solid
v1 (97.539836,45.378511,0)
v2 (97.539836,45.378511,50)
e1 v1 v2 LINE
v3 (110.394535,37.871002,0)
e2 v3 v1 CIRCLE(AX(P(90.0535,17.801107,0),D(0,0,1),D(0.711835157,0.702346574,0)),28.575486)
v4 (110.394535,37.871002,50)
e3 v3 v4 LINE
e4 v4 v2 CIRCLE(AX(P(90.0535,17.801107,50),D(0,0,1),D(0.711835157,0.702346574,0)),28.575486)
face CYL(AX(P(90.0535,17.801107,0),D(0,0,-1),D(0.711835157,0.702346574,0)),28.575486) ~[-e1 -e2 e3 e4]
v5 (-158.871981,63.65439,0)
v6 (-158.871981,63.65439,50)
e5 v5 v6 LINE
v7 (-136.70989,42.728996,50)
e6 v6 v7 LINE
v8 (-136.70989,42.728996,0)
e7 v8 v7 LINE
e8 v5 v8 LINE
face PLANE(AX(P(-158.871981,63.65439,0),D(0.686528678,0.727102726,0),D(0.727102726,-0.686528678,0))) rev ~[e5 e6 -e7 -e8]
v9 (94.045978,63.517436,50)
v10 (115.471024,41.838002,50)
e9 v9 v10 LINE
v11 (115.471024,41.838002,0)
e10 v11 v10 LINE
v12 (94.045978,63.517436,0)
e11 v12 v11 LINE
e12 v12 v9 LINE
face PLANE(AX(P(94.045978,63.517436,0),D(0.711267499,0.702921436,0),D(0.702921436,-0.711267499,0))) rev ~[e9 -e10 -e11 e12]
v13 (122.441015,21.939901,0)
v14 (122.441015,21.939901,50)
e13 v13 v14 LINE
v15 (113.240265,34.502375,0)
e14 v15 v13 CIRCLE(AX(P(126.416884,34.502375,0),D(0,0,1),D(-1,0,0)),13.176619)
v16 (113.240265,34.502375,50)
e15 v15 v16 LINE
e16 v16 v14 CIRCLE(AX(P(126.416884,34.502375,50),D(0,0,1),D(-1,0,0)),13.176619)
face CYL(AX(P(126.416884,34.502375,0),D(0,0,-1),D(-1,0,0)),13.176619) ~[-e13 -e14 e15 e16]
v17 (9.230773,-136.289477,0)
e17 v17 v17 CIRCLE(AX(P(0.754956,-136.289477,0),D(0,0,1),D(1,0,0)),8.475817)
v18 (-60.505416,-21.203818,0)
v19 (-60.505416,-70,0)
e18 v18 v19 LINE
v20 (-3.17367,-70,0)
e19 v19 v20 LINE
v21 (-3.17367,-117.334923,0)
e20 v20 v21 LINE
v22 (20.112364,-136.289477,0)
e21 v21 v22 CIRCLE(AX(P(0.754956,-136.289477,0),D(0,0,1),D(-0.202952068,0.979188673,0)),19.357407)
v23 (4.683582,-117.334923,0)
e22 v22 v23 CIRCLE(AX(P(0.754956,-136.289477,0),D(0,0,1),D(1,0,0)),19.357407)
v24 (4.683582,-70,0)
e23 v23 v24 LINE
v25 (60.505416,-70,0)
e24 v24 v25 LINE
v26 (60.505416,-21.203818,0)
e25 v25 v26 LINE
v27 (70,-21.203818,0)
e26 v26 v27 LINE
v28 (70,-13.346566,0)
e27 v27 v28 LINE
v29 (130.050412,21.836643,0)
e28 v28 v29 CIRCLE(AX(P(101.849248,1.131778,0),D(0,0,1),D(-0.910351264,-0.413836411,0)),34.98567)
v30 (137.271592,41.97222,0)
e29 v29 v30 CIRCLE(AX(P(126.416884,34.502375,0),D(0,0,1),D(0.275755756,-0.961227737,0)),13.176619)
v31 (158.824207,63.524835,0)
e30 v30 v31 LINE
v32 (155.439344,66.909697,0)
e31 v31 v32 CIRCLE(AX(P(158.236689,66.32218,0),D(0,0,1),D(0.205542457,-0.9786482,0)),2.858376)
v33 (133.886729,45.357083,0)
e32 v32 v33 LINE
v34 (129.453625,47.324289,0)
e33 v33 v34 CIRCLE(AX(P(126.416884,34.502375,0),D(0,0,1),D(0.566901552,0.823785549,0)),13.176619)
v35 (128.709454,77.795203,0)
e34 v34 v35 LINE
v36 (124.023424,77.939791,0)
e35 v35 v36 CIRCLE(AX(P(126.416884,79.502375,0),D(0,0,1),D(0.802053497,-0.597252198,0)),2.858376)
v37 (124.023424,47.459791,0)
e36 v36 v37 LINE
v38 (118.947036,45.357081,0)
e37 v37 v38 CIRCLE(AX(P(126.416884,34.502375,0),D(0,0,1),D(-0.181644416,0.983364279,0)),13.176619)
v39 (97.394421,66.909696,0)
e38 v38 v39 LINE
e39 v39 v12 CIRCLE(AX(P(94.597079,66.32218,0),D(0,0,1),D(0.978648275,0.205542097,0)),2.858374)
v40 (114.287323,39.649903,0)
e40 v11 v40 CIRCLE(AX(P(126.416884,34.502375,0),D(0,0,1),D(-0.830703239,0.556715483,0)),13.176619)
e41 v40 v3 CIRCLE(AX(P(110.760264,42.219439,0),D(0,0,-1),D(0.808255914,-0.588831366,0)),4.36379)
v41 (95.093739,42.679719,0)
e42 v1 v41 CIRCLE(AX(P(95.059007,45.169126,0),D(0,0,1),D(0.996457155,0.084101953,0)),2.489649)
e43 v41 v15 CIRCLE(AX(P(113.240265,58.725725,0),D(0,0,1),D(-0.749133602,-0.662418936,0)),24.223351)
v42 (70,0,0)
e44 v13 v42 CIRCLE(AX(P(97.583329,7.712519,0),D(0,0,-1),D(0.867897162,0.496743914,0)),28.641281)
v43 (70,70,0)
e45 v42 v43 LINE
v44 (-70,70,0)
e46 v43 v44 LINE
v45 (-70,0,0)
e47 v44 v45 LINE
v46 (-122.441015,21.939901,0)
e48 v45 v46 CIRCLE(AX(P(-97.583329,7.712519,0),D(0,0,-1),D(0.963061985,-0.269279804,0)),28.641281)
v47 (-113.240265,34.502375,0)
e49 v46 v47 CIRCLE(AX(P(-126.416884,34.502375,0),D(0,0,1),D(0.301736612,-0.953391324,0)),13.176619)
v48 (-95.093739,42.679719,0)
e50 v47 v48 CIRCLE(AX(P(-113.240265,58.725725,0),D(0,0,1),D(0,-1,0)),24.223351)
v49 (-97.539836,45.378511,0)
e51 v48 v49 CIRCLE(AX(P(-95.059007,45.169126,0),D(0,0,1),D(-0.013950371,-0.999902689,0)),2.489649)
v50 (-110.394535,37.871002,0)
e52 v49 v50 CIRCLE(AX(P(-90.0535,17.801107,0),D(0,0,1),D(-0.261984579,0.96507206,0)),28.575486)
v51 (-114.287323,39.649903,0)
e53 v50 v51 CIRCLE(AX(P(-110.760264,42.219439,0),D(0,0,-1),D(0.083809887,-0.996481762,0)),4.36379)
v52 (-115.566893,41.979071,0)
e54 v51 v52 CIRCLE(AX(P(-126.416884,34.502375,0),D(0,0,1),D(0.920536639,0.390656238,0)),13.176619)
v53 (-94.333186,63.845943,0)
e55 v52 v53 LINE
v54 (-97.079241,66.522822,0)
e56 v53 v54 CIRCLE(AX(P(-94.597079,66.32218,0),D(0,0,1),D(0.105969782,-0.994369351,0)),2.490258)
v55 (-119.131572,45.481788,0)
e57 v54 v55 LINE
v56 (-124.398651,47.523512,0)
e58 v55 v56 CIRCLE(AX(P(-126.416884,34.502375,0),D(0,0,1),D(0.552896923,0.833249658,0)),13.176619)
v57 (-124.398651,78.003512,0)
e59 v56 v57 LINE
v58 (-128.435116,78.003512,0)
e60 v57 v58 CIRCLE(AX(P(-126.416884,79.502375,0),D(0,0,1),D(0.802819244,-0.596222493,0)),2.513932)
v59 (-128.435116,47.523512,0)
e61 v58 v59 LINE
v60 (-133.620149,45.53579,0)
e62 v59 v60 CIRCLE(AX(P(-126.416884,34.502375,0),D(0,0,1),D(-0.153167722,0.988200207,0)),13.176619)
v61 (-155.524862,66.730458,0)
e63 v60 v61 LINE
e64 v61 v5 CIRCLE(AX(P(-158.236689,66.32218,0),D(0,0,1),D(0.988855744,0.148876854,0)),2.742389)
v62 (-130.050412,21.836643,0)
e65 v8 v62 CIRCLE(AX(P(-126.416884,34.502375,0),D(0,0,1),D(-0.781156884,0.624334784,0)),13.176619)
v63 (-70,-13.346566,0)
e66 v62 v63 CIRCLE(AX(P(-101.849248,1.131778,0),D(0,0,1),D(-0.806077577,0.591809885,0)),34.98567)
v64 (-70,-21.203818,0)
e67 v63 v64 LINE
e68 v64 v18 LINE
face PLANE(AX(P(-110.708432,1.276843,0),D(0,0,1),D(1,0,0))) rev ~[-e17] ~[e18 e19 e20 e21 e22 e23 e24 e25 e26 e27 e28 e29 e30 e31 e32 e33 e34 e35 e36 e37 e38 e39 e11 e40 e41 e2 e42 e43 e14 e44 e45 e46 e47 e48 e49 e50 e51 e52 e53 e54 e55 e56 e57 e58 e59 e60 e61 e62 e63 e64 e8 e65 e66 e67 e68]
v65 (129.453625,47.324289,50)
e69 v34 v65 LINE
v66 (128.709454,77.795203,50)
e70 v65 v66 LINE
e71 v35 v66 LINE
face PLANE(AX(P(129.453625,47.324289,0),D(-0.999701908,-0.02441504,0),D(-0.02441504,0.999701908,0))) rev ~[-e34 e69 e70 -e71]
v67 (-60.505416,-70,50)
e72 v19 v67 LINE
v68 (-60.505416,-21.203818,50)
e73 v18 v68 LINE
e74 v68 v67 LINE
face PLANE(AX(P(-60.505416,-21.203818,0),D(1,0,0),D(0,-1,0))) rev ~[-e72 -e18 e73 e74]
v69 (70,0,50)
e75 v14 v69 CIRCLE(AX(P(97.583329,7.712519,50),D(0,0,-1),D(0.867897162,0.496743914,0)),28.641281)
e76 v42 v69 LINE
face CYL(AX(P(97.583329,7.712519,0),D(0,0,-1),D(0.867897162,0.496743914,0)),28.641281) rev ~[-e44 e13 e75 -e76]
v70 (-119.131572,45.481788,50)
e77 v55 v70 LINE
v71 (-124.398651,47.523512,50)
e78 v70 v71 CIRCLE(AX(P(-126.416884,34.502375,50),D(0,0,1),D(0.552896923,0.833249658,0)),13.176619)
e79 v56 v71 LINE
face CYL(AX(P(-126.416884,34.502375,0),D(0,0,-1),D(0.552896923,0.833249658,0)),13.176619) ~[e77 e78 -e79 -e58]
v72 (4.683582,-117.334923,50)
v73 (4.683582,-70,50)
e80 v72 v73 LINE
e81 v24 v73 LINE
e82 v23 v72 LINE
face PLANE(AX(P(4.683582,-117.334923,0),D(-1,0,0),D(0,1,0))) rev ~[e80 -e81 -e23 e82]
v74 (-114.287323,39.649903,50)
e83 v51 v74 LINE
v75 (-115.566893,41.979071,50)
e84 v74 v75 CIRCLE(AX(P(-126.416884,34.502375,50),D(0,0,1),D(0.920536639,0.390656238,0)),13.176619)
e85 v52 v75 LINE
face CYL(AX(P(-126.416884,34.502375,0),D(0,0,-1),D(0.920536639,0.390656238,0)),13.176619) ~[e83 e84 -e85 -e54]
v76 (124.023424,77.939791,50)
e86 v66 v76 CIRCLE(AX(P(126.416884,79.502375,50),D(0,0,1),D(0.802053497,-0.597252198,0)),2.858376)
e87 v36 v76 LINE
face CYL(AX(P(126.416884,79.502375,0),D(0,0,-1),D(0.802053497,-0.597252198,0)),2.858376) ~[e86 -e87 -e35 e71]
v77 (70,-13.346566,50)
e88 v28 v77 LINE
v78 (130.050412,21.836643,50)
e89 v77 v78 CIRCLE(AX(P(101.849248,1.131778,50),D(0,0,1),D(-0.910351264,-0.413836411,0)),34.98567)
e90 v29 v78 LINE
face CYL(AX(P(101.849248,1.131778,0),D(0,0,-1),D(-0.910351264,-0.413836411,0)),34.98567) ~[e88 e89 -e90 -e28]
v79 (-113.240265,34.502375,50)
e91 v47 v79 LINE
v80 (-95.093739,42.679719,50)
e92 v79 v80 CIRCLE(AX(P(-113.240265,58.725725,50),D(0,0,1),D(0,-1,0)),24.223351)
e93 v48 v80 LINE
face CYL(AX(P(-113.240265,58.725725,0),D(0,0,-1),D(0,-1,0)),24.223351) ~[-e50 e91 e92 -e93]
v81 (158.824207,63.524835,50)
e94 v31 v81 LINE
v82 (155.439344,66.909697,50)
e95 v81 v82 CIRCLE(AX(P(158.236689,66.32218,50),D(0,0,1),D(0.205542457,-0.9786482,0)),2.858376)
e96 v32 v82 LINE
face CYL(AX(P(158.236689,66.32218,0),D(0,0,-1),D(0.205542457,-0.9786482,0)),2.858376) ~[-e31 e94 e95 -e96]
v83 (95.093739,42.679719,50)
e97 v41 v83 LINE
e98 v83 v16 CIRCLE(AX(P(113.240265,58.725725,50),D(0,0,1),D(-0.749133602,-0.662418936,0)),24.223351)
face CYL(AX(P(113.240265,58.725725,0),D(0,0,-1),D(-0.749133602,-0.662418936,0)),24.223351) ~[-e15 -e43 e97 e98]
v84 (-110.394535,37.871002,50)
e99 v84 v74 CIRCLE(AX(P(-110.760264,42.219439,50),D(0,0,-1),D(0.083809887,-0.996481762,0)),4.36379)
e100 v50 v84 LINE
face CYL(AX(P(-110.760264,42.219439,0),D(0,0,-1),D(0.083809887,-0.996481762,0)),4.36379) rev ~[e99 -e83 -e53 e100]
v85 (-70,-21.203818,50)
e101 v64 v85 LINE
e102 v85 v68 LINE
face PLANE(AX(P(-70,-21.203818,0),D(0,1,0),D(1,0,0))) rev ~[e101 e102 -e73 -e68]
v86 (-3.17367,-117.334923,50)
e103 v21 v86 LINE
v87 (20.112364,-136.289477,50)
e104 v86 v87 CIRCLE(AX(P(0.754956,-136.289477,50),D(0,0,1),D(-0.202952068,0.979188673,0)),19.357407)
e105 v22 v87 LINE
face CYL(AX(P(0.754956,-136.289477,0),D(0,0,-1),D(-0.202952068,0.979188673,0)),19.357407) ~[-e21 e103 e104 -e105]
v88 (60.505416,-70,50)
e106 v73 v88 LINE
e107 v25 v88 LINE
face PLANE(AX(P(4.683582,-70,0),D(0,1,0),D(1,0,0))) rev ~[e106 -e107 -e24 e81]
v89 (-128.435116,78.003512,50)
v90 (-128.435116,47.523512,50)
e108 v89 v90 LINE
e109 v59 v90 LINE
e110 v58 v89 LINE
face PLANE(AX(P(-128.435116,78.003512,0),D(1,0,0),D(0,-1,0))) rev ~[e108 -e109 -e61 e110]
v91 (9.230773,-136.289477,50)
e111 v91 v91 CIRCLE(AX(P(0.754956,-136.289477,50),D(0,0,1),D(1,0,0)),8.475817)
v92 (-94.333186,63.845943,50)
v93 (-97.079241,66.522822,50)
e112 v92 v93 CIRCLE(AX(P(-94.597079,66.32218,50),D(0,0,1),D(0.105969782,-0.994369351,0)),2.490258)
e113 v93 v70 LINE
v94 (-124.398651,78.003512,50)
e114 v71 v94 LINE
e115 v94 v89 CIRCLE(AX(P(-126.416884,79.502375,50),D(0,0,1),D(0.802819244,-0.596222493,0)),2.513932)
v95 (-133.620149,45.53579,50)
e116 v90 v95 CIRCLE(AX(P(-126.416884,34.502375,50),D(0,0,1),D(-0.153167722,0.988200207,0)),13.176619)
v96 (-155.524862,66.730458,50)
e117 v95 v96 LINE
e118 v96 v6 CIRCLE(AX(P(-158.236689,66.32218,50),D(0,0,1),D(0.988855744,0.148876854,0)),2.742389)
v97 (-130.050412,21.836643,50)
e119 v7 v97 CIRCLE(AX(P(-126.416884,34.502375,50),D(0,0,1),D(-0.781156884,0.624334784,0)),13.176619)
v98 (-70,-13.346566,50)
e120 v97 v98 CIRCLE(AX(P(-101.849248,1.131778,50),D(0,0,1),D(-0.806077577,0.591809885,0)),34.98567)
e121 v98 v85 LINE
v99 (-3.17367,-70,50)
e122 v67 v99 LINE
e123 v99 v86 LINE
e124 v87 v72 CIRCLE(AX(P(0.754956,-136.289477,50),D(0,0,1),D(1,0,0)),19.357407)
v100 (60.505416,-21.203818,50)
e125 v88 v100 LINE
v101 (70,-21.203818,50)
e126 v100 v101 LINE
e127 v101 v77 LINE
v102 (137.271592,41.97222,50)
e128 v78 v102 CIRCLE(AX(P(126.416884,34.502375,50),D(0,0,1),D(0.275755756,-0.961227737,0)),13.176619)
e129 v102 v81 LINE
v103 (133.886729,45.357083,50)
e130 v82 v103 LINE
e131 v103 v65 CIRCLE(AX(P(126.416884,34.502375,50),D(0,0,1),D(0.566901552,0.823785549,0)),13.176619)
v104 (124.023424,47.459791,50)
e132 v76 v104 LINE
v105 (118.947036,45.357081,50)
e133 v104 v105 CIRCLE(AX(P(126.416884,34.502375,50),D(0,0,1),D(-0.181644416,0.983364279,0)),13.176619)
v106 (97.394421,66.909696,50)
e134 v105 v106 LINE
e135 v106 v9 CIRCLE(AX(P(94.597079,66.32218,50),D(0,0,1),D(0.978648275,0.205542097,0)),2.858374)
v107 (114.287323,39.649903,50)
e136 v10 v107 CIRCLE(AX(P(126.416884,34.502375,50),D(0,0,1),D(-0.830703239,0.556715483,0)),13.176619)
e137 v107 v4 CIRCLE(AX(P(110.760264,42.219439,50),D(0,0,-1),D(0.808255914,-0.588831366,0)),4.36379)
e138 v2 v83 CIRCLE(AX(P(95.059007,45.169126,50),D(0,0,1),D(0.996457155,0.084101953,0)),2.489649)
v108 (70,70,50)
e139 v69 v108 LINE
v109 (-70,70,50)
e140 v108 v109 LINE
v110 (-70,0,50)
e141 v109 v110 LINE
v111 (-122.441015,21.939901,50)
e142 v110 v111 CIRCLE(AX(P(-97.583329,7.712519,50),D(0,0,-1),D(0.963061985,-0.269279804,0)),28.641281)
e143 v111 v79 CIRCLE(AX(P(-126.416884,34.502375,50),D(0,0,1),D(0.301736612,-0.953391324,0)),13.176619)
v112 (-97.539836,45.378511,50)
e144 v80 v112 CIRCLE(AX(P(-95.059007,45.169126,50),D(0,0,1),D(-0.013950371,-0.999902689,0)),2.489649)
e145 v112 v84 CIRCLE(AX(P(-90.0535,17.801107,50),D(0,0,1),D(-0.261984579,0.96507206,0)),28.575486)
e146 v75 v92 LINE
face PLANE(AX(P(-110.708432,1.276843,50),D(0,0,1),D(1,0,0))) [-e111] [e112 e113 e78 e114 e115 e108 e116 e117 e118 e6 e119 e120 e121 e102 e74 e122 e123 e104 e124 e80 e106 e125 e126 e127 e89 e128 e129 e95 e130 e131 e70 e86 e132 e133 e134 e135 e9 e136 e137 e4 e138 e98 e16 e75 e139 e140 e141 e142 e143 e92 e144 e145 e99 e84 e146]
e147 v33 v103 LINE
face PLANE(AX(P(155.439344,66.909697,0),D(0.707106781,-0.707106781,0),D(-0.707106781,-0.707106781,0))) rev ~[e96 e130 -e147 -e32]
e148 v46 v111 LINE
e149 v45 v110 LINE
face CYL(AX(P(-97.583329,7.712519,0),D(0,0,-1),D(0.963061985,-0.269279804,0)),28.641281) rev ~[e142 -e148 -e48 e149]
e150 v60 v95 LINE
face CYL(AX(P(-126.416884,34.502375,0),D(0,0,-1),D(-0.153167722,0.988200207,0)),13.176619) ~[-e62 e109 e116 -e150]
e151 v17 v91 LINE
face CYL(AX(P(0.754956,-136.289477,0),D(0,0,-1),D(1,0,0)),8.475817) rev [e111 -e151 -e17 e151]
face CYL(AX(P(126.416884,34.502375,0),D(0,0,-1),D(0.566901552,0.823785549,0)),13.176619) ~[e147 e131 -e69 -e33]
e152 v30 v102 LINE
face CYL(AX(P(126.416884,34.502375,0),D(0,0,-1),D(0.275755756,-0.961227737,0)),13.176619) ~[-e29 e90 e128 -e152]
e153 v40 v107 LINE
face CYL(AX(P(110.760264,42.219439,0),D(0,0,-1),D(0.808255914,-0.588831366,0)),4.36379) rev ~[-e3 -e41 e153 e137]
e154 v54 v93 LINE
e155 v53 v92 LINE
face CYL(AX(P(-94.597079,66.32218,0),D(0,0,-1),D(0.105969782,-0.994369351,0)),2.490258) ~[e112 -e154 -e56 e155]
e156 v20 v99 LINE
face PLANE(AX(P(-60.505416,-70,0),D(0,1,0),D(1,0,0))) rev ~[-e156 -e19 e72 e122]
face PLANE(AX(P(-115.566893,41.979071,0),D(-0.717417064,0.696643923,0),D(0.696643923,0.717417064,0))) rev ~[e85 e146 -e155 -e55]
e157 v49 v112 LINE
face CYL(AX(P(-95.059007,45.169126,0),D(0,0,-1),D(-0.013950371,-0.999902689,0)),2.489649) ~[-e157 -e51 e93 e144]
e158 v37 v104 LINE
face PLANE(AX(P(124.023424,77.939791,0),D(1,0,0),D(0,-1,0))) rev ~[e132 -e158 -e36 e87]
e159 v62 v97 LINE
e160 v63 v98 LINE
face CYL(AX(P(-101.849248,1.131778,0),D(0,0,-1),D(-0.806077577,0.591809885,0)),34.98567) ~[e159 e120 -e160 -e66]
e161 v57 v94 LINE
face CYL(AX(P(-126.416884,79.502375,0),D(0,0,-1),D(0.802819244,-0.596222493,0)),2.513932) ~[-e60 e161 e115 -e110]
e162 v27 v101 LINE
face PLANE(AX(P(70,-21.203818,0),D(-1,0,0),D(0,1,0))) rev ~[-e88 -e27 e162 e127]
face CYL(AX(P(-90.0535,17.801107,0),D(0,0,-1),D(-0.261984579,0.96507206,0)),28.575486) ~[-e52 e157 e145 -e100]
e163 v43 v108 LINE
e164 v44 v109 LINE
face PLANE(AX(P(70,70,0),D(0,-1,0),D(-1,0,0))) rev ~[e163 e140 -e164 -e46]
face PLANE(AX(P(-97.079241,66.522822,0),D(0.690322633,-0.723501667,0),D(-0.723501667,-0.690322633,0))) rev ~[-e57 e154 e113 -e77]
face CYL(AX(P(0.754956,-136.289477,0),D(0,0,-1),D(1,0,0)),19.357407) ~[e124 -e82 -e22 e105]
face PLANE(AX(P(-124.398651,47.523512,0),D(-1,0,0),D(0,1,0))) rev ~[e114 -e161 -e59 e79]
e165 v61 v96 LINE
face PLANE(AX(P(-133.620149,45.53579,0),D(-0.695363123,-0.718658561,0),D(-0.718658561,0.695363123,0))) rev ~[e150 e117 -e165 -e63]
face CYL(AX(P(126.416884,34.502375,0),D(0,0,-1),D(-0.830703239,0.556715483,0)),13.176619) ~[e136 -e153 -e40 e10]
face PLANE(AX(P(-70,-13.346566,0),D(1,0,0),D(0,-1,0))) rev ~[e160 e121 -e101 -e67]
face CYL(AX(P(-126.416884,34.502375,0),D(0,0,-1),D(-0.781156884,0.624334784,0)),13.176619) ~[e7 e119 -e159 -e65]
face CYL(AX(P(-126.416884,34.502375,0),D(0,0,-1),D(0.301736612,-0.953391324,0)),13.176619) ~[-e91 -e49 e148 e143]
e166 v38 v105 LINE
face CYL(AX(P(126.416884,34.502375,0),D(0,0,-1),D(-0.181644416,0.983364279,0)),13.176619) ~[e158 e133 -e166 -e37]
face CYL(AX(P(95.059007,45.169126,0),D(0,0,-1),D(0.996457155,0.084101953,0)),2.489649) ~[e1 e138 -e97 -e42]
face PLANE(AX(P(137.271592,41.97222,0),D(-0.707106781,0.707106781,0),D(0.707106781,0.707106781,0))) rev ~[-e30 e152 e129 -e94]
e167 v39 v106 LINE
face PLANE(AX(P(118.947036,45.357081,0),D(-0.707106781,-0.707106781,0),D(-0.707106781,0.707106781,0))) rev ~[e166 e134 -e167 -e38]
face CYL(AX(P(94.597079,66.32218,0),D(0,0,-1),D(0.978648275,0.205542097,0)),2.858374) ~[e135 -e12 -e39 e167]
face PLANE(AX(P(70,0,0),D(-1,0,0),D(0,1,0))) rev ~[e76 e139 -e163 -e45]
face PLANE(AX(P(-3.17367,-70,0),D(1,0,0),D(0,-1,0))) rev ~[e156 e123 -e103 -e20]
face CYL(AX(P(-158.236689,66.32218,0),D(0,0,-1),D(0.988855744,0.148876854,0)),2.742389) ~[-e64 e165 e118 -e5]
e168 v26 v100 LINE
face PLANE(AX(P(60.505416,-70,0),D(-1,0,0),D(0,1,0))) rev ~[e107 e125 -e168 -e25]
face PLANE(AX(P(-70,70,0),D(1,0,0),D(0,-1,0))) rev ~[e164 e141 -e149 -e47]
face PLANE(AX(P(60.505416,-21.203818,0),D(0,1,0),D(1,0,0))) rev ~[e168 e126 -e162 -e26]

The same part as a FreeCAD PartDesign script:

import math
import FreeCAD as App
import Part
import Sketcher
from FreeCAD import Vector

doc = App.newDocument("Part")
body = doc.addObject("PartDesign::Body", "Body")

sketch1 = body.newObject("Sketcher::SketchObject", "Sketch")
sketch1.AttachmentSupport = (doc.getObject("XY_Plane"), [""])
sketch1.MapMode = "FlatFace"
sketch1.addGeometry([
    Part.ArcOfCircle(Part.Circle(Vector(-101.8, 1.1, 0), Vector(0, 0, 1), 35), math.radians(144), math.radians(336)),
    Part.LineSegment(Vector(-70, -13.3, 0), Vector(-70, -21.2, 0)),
    Part.LineSegment(Vector(-70, -21.2, 0), Vector(-60.5, -21.2, 0)),
    Part.LineSegment(Vector(-60.5, -21.2, 0), Vector(-60.5, -70, 0)),
    Part.LineSegment(Vector(-60.5, -70, 0), Vector(-3.2, -70, 0)),
    Part.LineSegment(Vector(-3.2, -70, 0), Vector(-3.2, -117.3, 0)),
    Part.ArcOfCircle(Part.Circle(Vector(0.8, -136.3, 0), Vector(0, 0, 1), 19.4), math.radians(102), math.radians(360)),
    Part.ArcOfCircle(Part.Circle(Vector(0.8, -136.3, 0), Vector(0, 0, 1), 19.4), math.radians(0), math.radians(78)),
    Part.LineSegment(Vector(4.7, -117.3, 0), Vector(4.7, -70, 0)),
    Part.LineSegment(Vector(4.7, -70, 0), Vector(60.5, -70, 0)),
    Part.LineSegment(Vector(60.5, -70, 0), Vector(60.5, -21.2, 0)),
    Part.LineSegment(Vector(60.5, -21.2, 0), Vector(70, -21.2, 0)),
    Part.LineSegment(Vector(70, -21.2, 0), Vector(70, -13.3, 0)),
    Part.ArcOfCircle(Part.Circle(Vector(101.8, 1.1, 0), Vector(0, 0, 1), 35), math.radians(-156), math.radians(36)),
    Part.ArcOfCircle(Part.Circle(Vector(126.4, 34.5, 0), Vector(0, 0, 1), 13.2), math.radians(-74), math.radians(35)),
    Part.LineSegment(Vector(137.3, 42, 0), Vector(158.8, 63.5, 0)),
    Part.ArcOfCircle(Part.Circle(Vector(158.2, 66.3, 0), Vector(0, 0, 1), 2.9), math.radians(-78), math.radians(168)),
    Part.LineSegment(Vector(155.4, 66.9, 0), Vector(133.9, 45.4, 0)),
    Part.ArcOfCircle(Part.Circle(Vector(126.4, 34.5, 0), Vector(0, 0, 1), 13.2), math.radians(55), math.radians(77)),
    Part.LineSegment(Vector(129.5, 47.3, 0), Vector(128.7, 77.8, 0)),
    Part.ArcOfCircle(Part.Circle(Vector(126.4, 79.5, 0), Vector(0, 0, 1), 2.9), math.radians(-37), math.radians(213)),
    Part.LineSegment(Vector(124, 77.9, 0), Vector(124, 47.5, 0)),
    Part.ArcOfCircle(Part.Circle(Vector(126.4, 34.5, 0), Vector(0, 0, 1), 13.2), math.radians(100), math.radians(125)),
    Part.LineSegment(Vector(118.9, 45.4, 0), Vector(97.4, 66.9, 0)),
    Part.ArcOfCircle(Part.Circle(Vector(94.6, 66.3, 0), Vector(0, 0, 1), 2.9), math.radians(12), math.radians(259)),
    Part.LineSegment(Vector(94, 63.5, 0), Vector(115.5, 41.8, 0)),
    Part.ArcOfCircle(Part.Circle(Vector(126.4, 34.5, 0), Vector(0, 0, 1), 13.2), math.radians(146.17), math.radians(157)),
    Part.ArcOfCircle(Part.Circle(Vector(110.8, 42.2, 0), Vector(0, 0, 1), 4.4), math.radians(-95), math.radians(-36)),
    Part.ArcOfCircle(Part.Circle(Vector(90.1, 17.8, 0), Vector(0, 0, 1), 28.6), math.radians(45), math.radians(75)),
    Part.ArcOfCircle(Part.Circle(Vector(95.1, 45.2, 0), Vector(0, 0, 1), 2.5), math.radians(5), math.radians(271)),
    Part.ArcOfCircle(Part.Circle(Vector(113.2, 58.7, 0), Vector(0, 0, 1), 24.2), math.radians(-139), math.radians(-90)),
    Part.ArcOfCircle(Part.Circle(Vector(126.4, 34.5, 0), Vector(0, 0, 1), 13.2), math.radians(-180), math.radians(-108)),
    Part.ArcOfCircle(Part.Circle(Vector(97.6, 7.7, 0), Vector(0, 0, 1), 28.6), math.radians(-164), math.radians(30)),
    Part.LineSegment(Vector(70, 0, 0), Vector(70, 70, 0)),
    Part.LineSegment(Vector(70, 70, 0), Vector(-70, 70, 0)),
    Part.LineSegment(Vector(-70, 70, 0), Vector(-70, 0, 0)),
    Part.ArcOfCircle(Part.Circle(Vector(-97.6, 7.7, 0), Vector(0, 0, 1), 28.6), math.radians(150), math.radians(344)),
    Part.ArcOfCircle(Part.Circle(Vector(-126.4, 34.5, 0), Vector(0, 0, 1), 13.2), math.radians(-72), math.radians(0)),
    Part.ArcOfCircle(Part.Circle(Vector(-113.2, 58.7, 0), Vector(0, 0, 1), 24.2), math.radians(-90), math.radians(-41)),
    Part.ArcOfCircle(Part.Circle(Vector(-95.1, 45.2, 0), Vector(0, 0, 1), 2.5), math.radians(-91), math.radians(175)),
    Part.ArcOfCircle(Part.Circle(Vector(-90.1, 17.8, 0), Vector(0, 0, 1), 28.6), math.radians(105), math.radians(135)),
    Part.ArcOfCircle(Part.Circle(Vector(-110.8, 42.2, 0), Vector(0, 0, 1), 4.4), math.radians(-144), math.radians(-85)),
    Part.ArcOfCircle(Part.Circle(Vector(-126.4, 34.5, 0), Vector(0, 0, 1), 13.2), math.radians(23), math.radians(34.57)),
    Part.LineSegment(Vector(-115.6, 42, 0), Vector(-94.3, 63.8, 0)),
    Part.ArcOfCircle(Part.Circle(Vector(-94.6, 66.3, 0), Vector(0, 0, 1), 2.5), math.radians(-84), math.radians(175)),
    Part.LineSegment(Vector(-97.1, 66.5, 0), Vector(-119.1, 45.5, 0)),
    Part.ArcOfCircle(Part.Circle(Vector(-126.4, 34.5, 0), Vector(0, 0, 1), 13.2), math.radians(56), math.radians(81)),
    Part.LineSegment(Vector(-124.4, 47.5, 0), Vector(-124.4, 78, 0)),
    Part.ArcOfCircle(Part.Circle(Vector(-126.4, 79.5, 0), Vector(0, 0, 1), 2.5), math.radians(-37), math.radians(217)),
    Part.LineSegment(Vector(-128.4, 78, 0), Vector(-128.4, 47.5, 0)),
    Part.ArcOfCircle(Part.Circle(Vector(-126.4, 34.5, 0), Vector(0, 0, 1), 13.2), math.radians(99), math.radians(123)),
    Part.LineSegment(Vector(-133.6, 45.5, 0), Vector(-155.5, 66.7, 0)),
    Part.ArcOfCircle(Part.Circle(Vector(-158.2, 66.3, 0), Vector(0, 0, 1), 2.7), math.radians(9), math.radians(257)),
    Part.LineSegment(Vector(-158.9, 63.7, 0), Vector(-136.7, 42.7, 0)),
    Part.ArcOfCircle(Part.Circle(Vector(-126.4, 34.5, 0), Vector(0, 0, 1), 13.2), math.radians(141), math.radians(254)),
    Part.Circle(Vector(0.8, -136.3, 0), Vector(0, 0, 1), 8.5),
], False)
sketch1.addConstraint([
    Sketcher.Constraint("Coincident", 0, 2, 1, 1),
    Sketcher.Constraint("Coincident", 1, 2, 2, 1),
    Sketcher.Constraint("Coincident", 2, 2, 3, 1),
    Sketcher.Constraint("Coincident", 3, 2, 4, 1),
    Sketcher.Constraint("Coincident", 4, 2, 5, 1),
    Sketcher.Constraint("Coincident", 5, 2, 6, 1),
    Sketcher.Constraint("Tangent", 6, 2, 7, 1),
    Sketcher.Constraint("Coincident", 7, 2, 8, 1),
    Sketcher.Constraint("Coincident", 8, 2, 9, 1),
    Sketcher.Constraint("Coincident", 9, 2, 10, 1),
    Sketcher.Constraint("Coincident", 10, 2, 11, 1),
    Sketcher.Constraint("Coincident", 11, 2, 12, 1),
    Sketcher.Constraint("Coincident", 12, 2, 13, 1),
    Sketcher.Constraint("Coincident", 13, 2, 14, 1),
    Sketcher.Constraint("Coincident", 14, 2, 15, 1),
    Sketcher.Constraint("Coincident", 15, 2, 16, 1),
    Sketcher.Constraint("Coincident", 16, 2, 17, 1),
    Sketcher.Constraint("Coincident", 17, 2, 18, 1),
    Sketcher.Constraint("Coincident", 18, 2, 19, 1),
    Sketcher.Constraint("Coincident", 19, 2, 20, 1),
    Sketcher.Constraint("Coincident", 20, 2, 21, 1),
    Sketcher.Constraint("Coincident", 21, 2, 22, 1),
    Sketcher.Constraint("Coincident", 22, 2, 23, 1),
    Sketcher.Constraint("Coincident", 23, 2, 24, 1),
    Sketcher.Constraint("Coincident", 24, 2, 25, 1),
    Sketcher.Constraint("Coincident", 25, 2, 26, 1),
    Sketcher.Constraint("Coincident", 26, 2, 27, 2),
    Sketcher.Constraint("Coincident", 27, 1, 28, 1),
    Sketcher.Constraint("Coincident", 28, 2, 29, 1),
    Sketcher.Constraint("Coincident", 29, 2, 30, 1),
    Sketcher.Constraint("Coincident", 30, 2, 31, 1),
    Sketcher.Constraint("Coincident", 31, 2, 32, 2),
    Sketcher.Constraint("Coincident", 32, 1, 33, 1),
    Sketcher.Constraint("Coincident", 33, 2, 34, 1),
    Sketcher.Constraint("Coincident", 34, 2, 35, 1),
    Sketcher.Constraint("Coincident", 35, 2, 36, 2),
    Sketcher.Constraint("Coincident", 36, 1, 37, 1),
    Sketcher.Constraint("Coincident", 37, 2, 38, 1),
    Sketcher.Constraint("Coincident", 38, 2, 39, 1),
    Sketcher.Constraint("Coincident", 39, 2, 40, 1),
    Sketcher.Constraint("Coincident", 40, 2, 41, 2),
    Sketcher.Constraint("Coincident", 41, 1, 42, 1),
    Sketcher.Constraint("Coincident", 42, 2, 43, 1),
    Sketcher.Constraint("Coincident", 43, 2, 44, 1),
    Sketcher.Constraint("Coincident", 44, 2, 45, 1),
    Sketcher.Constraint("Coincident", 45, 2, 46, 1),
    Sketcher.Constraint("Coincident", 46, 2, 47, 1),
    Sketcher.Constraint("Coincident", 47, 2, 48, 1),
    Sketcher.Constraint("Coincident", 48, 2, 49, 1),
    Sketcher.Constraint("Coincident", 49, 2, 50, 1),
    Sketcher.Constraint("Coincident", 50, 2, 51, 1),
    Sketcher.Constraint("Coincident", 51, 2, 52, 1),
    Sketcher.Constraint("Coincident", 52, 2, 53, 1),
    Sketcher.Constraint("Coincident", 53, 2, 54, 1),
    Sketcher.Constraint("Coincident", 54, 2, 0, 1),
    Sketcher.Constraint("Vertical", 1),
    Sketcher.Constraint("Horizontal", 2),
    Sketcher.Constraint("Vertical", 3),
    Sketcher.Constraint("Horizontal", 4),
    Sketcher.Constraint("Vertical", 5),
    Sketcher.Constraint("Vertical", 8),
    Sketcher.Constraint("Horizontal", 9),
    Sketcher.Constraint("Vertical", 10),
    Sketcher.Constraint("Horizontal", 11),
    Sketcher.Constraint("Vertical", 12),
    Sketcher.Constraint("Vertical", 21),
    Sketcher.Constraint("Vertical", 33),
    Sketcher.Constraint("Horizontal", 34),
    Sketcher.Constraint("Vertical", 35),
    Sketcher.Constraint("Vertical", 47),
    Sketcher.Constraint("Vertical", 49),
    Sketcher.Constraint("Coincident", 18, 3, 14, 3),
    Sketcher.Constraint("Coincident", 22, 3, 14, 3),
    Sketcher.Constraint("Coincident", 26, 3, 14, 3),
    Sketcher.Constraint("Coincident", 31, 3, 14, 3),
    Sketcher.Constraint("Coincident", 42, 3, 37, 3),
    Sketcher.Constraint("Coincident", 46, 3, 37, 3),
    Sketcher.Constraint("Coincident", 50, 3, 37, 3),
    Sketcher.Constraint("Coincident", 54, 3, 37, 3),
    Sketcher.Constraint("Coincident", 55, 3, 6, 3),
    Sketcher.Constraint("Equal", 6, 7),
    Sketcher.Constraint("Equal", 0, 13),
    Sketcher.Constraint("Equal", 14, 18),
    Sketcher.Constraint("Equal", 16, 20),
    Sketcher.Constraint("Equal", 18, 22),
    Sketcher.Constraint("Equal", 22, 26),
    Sketcher.Constraint("Equal", 26, 31),
    Sketcher.Constraint("Equal", 32, 36),
    Sketcher.Constraint("Equal", 31, 37),
    Sketcher.Constraint("Equal", 30, 38),
    Sketcher.Constraint("Equal", 29, 39),
    Sketcher.Constraint("Equal", 28, 40),
    Sketcher.Constraint("Equal", 27, 41),
    Sketcher.Constraint("Equal", 37, 42),
    Sketcher.Constraint("Equal", 42, 46),
    Sketcher.Constraint("Equal", 46, 50),
    Sketcher.Constraint("Equal", 50, 54),
    Sketcher.Constraint("Symmetric", 32, 1, 35, 2, -1, 1),
    Sketcher.Constraint("Symmetric", 0, 3, 13, 3, -2),
    Sketcher.Constraint("Symmetric", 32, 3, 36, 3, -2),
    Sketcher.Constraint("Symmetric", 14, 3, 37, 3, -2),
    Sketcher.Constraint("Symmetric", 30, 3, 38, 3, -2),
    Sketcher.Constraint("Symmetric", 29, 3, 39, 3, -2),
    Sketcher.Constraint("Symmetric", 28, 3, 40, 3, -2),
    Sketcher.Constraint("Symmetric", 27, 3, 41, 3, -2),
    Sketcher.Constraint("Symmetric", 24, 3, 44, 3, -2),
    Sketcher.Constraint("Symmetric", 20, 3, 48, 3, -2),
    Sketcher.Constraint("Symmetric", 16, 3, 52, 3, -2),
    Sketcher.Constraint("Symmetric", 3, 2, 9, 2, -2),
    Sketcher.Constraint("Symmetric", 1, 2, 11, 2, -2),
    Sketcher.Constraint("Parallel", 15, 17),
    Sketcher.Constraint("Perpendicular", 17, 23),
    Sketcher.Constraint("Horizontal", 16, 3, 24, 3),
    Sketcher.Constraint("Horizontal", 55, 3, 6, 2),
    Sketcher.Constraint("Horizontal", 5, 2, 7, 2),
    Sketcher.Constraint("Horizontal", 17, 2, 22, 2),
    Sketcher.Constraint("Horizontal", 16, 2, 23, 2),
    Sketcher.Constraint("Horizontal", 54, 3, 30, 2),
    Sketcher.Constraint("Horizontal", 47, 2, 48, 2),
    Sketcher.Constraint("Horizontal", 46, 2, 49, 2),
    Sketcher.Constraint("Vertical", 12, 2, 32, 1),
    Sketcher.Constraint("Vertical", 38, 3, 37, 2),
    Sketcher.Constraint("Equal", 21, 47),
    Sketcher.Constraint("Equal", 15, 17),
    Sketcher.Constraint("Equal", 17, 19),
    Sketcher.Constraint("Equal", 19, 23),
    Sketcher.Constraint("Equal", 23, 25),
    Sketcher.Constraint("Equal", 25, 43),
    Sketcher.Constraint("Equal", 43, 45),
    Sketcher.Constraint("Equal", 45, 51),
    Sketcher.Constraint("Equal", 51, 53),
    Sketcher.Constraint("DistanceX", 34, 2, 34, 1, 140.0),
    Sketcher.Constraint("DistanceY", 33, 1, 33, 2, 70.0),
    Sketcher.Constraint("DistanceY", 3, 2, -1, 1, 70.0),
    Sketcher.Constraint("DistanceY", 21, 2, 21, 1, 30.48),
    Sketcher.Constraint("Distance", 15, 30.48),
    Sketcher.Constraint("Radius", 0, 34.98567),
    Sketcher.Constraint("Radius", 14, 13.176619),
    Sketcher.Constraint("Radius", 27, 4.36379),
    Sketcher.Constraint("Radius", 29, 2.489649),
    Sketcher.Constraint("Radius", 30, 24.223351),
    Sketcher.Constraint("Radius", 32, 28.641281),
    Sketcher.Constraint("Radius", 44, 2.490258),
    Sketcher.Constraint("Radius", 48, 2.513932),
    Sketcher.Constraint("Radius", 52, 2.742389),
    Sketcher.Constraint("Diameter", 55, 16.951634),
    Sketcher.Constraint("Radius", 6, 19.357407),
    Sketcher.Constraint("Radius", 16, 2.858376),
    Sketcher.Constraint("Radius", 24, 2.858374),
    Sketcher.Constraint("Radius", 28, 28.575486),
    Sketcher.Constraint("DistanceY", 1, 2, 1, 1, 7.857252),
    Sketcher.Constraint("DistanceX", -1, 1, 28, 3, 90.0535),
    Sketcher.Constraint("DistanceY", -1, 1, 31, 2, 21.939901),
    Sketcher.Constraint("DistanceX", 2, 1, 2, 2, 9.494584),
    Sketcher.Constraint("DistanceX", 4, 1, 4, 2, 57.331747),
    Sketcher.Constraint("DistanceX", 9, 1, 9, 2, 55.821834),
    Sketcher.Constraint("DistanceY", 3, 2, 3, 1, 48.796182),
    Sketcher.Constraint("DistanceY", 5, 2, 5, 1, 47.334923),
    Sketcher.Constraint("DistanceX", 0, 3, -1, 1, 101.849248),
    Sketcher.Constraint("DistanceX", -1, 1, 16, 3, 158.236689),
    Sketcher.Constraint("DistanceY", -1, 1, 16, 3, 66.32218),
    Sketcher.Constraint("DistanceX", -1, 1, 24, 3, 94.597079),
    Sketcher.Constraint("DistanceY", -1, 1, 27, 3, 42.219439),
    Sketcher.Constraint("DistanceX", -1, 1, 32, 3, 97.583329),
    Sketcher.Constraint("DistanceY", -1, 1, 18, 2, 47.324289),
    Sketcher.Constraint("DistanceY", -1, 1, 20, 2, 77.939791),
    Sketcher.Constraint("DistanceX", -1, 1, 24, 2, 94.045978),
    Sketcher.Constraint("DistanceY", -1, 1, 28, 2, 45.378511),
    Sketcher.Constraint("DistanceX", -1, 1, 29, 2, 95.093739),
    Sketcher.Constraint("DistanceY", -1, 1, 42, 2, 41.979071),
    Sketcher.Constraint("DistanceX", 44, 2, -1, 1, 97.079241),
    Sketcher.Constraint("DistanceX", 50, 2, -1, 1, 133.620149),
    Sketcher.Constraint("DistanceX", 52, 2, -1, 1, 158.871981),
    Sketcher.Constraint("DistanceX", -1, 1, 27, 3, 110.760264),
    Sketcher.Constraint("DistanceY", -1, 1, 28, 3, 17.801107),
])
pad1 = body.newObject("PartDesign::Pad", "Pad")
pad1.Profile = sketch1
pad1.Length = 50

doc.recompute()
